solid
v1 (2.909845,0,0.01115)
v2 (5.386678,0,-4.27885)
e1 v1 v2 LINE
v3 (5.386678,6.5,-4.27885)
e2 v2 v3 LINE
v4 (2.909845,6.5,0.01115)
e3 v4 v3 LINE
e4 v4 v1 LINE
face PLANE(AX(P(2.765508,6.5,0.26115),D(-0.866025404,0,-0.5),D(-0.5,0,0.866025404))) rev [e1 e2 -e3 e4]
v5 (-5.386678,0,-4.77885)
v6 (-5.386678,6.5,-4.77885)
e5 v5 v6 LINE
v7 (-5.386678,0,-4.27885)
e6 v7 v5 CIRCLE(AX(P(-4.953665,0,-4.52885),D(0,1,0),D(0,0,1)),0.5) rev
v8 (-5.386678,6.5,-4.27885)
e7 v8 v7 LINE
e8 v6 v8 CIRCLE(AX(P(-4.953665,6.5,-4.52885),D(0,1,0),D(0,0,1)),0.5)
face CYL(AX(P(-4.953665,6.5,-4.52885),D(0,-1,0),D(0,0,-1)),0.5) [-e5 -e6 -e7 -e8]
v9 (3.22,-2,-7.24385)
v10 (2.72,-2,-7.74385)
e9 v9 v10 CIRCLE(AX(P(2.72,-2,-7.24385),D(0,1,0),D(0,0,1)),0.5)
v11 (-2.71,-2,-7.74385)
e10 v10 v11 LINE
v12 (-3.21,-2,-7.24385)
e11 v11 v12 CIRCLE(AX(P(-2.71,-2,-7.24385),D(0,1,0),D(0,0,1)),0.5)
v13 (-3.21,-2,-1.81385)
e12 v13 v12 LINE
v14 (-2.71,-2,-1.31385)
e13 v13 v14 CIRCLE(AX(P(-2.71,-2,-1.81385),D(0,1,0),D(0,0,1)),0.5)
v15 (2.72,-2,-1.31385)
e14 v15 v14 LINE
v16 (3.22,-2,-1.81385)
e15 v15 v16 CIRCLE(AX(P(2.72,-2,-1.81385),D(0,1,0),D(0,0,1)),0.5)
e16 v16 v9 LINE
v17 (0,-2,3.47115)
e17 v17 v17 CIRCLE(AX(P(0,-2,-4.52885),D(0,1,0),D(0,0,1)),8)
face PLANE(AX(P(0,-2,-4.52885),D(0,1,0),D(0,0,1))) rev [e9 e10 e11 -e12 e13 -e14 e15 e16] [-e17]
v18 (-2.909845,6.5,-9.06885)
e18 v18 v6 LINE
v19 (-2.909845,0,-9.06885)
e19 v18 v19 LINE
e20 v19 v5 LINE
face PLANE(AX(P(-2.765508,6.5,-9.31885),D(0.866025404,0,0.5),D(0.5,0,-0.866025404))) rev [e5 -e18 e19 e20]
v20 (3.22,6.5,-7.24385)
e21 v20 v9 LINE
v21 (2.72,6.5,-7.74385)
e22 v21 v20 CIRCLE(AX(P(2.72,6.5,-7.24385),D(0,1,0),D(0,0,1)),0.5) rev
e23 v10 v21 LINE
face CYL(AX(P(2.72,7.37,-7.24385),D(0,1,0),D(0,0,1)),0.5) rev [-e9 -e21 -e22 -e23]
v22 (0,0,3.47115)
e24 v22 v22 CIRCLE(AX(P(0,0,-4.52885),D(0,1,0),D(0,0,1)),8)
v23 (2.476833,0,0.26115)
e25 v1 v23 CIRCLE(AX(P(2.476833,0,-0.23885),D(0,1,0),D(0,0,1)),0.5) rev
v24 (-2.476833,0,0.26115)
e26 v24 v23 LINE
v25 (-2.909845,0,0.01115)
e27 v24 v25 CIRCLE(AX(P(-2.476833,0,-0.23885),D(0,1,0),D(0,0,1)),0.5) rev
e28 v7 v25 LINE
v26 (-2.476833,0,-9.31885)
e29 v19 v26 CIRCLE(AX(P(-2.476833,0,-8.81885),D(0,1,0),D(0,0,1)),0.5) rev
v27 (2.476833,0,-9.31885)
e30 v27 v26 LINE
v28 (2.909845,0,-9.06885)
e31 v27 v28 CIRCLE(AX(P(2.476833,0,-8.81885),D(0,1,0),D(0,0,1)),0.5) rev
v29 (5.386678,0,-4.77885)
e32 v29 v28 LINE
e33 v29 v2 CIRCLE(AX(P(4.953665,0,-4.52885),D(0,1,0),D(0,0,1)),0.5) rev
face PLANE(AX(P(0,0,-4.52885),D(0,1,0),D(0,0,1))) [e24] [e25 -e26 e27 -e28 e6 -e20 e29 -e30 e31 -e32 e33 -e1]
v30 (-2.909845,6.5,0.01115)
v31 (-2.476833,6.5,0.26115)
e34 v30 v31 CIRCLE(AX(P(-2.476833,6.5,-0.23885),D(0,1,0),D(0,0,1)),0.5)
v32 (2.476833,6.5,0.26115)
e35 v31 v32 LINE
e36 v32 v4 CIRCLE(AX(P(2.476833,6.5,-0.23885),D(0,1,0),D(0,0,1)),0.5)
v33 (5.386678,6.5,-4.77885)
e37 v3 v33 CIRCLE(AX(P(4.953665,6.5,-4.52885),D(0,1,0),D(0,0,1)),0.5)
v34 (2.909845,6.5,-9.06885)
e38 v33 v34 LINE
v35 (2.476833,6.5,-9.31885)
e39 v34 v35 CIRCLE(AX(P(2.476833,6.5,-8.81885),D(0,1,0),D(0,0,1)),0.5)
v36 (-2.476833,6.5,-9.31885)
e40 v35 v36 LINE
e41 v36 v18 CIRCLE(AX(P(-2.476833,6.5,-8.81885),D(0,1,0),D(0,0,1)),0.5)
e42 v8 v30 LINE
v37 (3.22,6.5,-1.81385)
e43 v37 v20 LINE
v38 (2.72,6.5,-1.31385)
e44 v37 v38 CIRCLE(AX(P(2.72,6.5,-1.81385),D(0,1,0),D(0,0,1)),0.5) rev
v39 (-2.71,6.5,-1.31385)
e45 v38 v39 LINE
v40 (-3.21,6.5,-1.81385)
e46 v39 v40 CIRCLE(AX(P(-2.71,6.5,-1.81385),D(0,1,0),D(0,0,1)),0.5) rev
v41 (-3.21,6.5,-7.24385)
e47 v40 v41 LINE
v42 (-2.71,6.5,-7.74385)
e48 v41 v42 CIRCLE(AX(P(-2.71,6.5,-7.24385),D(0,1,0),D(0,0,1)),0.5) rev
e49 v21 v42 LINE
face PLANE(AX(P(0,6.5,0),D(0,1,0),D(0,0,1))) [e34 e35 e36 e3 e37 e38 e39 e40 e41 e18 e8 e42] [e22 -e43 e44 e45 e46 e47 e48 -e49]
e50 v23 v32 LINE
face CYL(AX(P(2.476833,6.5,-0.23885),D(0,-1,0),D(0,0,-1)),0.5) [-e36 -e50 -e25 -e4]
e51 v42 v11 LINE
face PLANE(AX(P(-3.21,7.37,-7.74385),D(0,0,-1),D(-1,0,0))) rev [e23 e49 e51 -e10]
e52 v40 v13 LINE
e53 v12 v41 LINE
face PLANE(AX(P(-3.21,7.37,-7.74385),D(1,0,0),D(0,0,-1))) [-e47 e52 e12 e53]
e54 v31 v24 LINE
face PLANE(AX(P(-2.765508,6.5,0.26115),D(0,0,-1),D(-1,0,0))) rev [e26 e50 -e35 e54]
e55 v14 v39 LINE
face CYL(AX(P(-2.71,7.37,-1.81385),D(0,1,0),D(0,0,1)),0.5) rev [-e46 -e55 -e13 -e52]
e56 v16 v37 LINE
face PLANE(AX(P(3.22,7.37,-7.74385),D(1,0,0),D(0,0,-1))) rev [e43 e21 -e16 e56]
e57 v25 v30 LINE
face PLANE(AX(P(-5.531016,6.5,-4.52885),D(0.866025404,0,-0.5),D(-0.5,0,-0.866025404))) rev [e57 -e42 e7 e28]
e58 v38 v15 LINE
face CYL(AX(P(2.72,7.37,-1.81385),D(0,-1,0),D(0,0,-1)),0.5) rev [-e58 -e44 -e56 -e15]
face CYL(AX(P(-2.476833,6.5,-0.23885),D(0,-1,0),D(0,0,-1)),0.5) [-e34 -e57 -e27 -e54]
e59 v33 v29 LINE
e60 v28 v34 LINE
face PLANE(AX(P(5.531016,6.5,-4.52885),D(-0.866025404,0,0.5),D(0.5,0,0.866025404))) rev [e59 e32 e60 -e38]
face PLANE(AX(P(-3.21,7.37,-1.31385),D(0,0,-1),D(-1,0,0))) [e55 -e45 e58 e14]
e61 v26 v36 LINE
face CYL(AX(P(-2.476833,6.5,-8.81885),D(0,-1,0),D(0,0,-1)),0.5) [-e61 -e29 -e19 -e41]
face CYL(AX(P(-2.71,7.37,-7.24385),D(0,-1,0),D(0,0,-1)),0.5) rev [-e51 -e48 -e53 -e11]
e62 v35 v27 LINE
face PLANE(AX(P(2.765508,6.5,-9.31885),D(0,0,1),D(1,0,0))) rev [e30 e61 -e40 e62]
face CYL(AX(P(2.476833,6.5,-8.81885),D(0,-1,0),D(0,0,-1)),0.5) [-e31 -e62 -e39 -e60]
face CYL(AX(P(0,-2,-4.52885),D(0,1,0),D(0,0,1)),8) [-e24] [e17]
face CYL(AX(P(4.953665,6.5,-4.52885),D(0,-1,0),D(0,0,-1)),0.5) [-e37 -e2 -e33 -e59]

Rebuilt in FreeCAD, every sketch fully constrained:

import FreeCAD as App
import Part
import Sketcher
from FreeCAD import Vector
Q = App.Units.Quantity


def edges_at(feature, points):
    """Names of the edges that pass closest to the given points."""
    edges = feature.Shape.Edges
    near = lambda p: min(range(len(edges)), key=lambda i: edges[i].distToShape(Part.Vertex(*p))[0])
    return sorted({f"Edge{near(p) + 1}" for p in points})


def add_polygon(sketch, points):
    """Adds a closed chain of lines whose ends are joined by coincident constraints."""
    first, n = sketch.GeometryCount, len(points)
    for a, b in zip(points, points[1:] + points[:1]):
        sketch.addGeometry(Part.LineSegment(App.Vector(*a, 0), App.Vector(*b, 0)), False)
    for i in range(n):
        sketch.addConstraint(Sketcher.Constraint("Coincident", first + i, 2, first + (i + 1) % n, 1))

doc = App.newDocument("Part")
body = doc.addObject("PartDesign::Body", "Body")

# Sketch on XZ plane
sketch1 = body.newObject("Sketcher::SketchObject", "Sketch")
sketch1.AttachmentSupport = (doc.getObject("XZ_Plane"), [""])
sketch1.MapMode = "FlatFace"
add_polygon(sketch1, [(3, 0), (6, -5), (3, -9), (-3, -9), (-6, -5), (-3, 0)])  # lines 0-5
sketch1.addConstraint([
    Sketcher.Constraint("Horizontal", 2),
    Sketcher.Constraint("Horizontal", 5),
    Sketcher.Constraint("Symmetric", 0, 2, 3, 2, -2),
    Sketcher.Constraint("Parallel", 0, 3),
    Sketcher.Constraint("Parallel", 1, 4),
    Sketcher.Constraint("Vertical", 2, 2, 4, 2),
    Sketcher.Constraint("Vertical", 1, 2, 5, 2),
    Sketcher.Constraint("Angle", 0, Q("-60 deg")),
    Sketcher.Constraint("DistanceY", 1, 2, 0, 2, 4.79),
    Sketcher.Constraint("DistanceX", 2, 2, 2, 1, 5.531016),
    Sketcher.Constraint("DistanceY", 0, 2, -1, 1, 4.52885),
])
pad1 = body.newObject("PartDesign::Pad", "Pad")
pad1.Profile = sketch1
pad1.Length = 6.5
pad1.Reversed = True

# Sketch on XZ plane
sketch2 = body.newObject("Sketcher::SketchObject", "Sketch001")
sketch2.AttachmentSupport = (doc.getObject("XZ_Plane"), [""])
sketch2.MapMode = "FlatFace"
sketch2.addGeometry(Part.Circle(Vector(0, -5, 0), Vector(0, 0, 1), 8), False)
sketch2.addConstraint([
    Sketcher.Constraint("PointOnObject", 0, 3, -2),
    Sketcher.Constraint("Diameter", 0, 16.0),
    Sketcher.Constraint("DistanceY", 0, 3, -1, 1, 4.52885),
])
pad2 = body.newObject("PartDesign::Pad", "Pad001")
pad2.Profile = sketch2
pad2.Length = 2

# Sketch on XZ plane
sketch3 = body.newObject("Sketcher::SketchObject", "Sketch002")
sketch3.AttachmentSupport = (doc.getObject("XZ_Plane"), [""])
sketch3.MapMode = "FlatFace"
add_polygon(sketch3, [(-3, -8), (-3, -1), (3, -1), (3, -8)])  # lines 0-3
sketch3.addConstraint([
    Sketcher.Constraint("Vertical", 0),
    Sketcher.Constraint("Horizontal", 1),
    Sketcher.Constraint("Vertical", 2),
    Sketcher.Constraint("Horizontal", 3),
    Sketcher.Constraint("Equal", 3, 0),
    Sketcher.Constraint("DistanceX", 1, 1, 1, 2, 6.43),
    Sketcher.Constraint("DistanceX", 0, 2, -1, 1, 3.21),
    Sketcher.Constraint("DistanceY", 0, 2, -1, 1, 1.31385),
])
pocket1 = body.newObject("PartDesign::Pocket", "Pocket")
pocket1.Profile = sketch3
pocket1.Type = "ThroughAll"
pocket1.Midplane = True
doc.recompute()

fillet = body.newObject("PartDesign::Fillet", "Fillet")
fillet.Base = (pocket1, edges_at(pocket1, [
    (3.22, 2.25, -7.744),
    (-3.21, 2.25, -7.744),
    (-3.21, 2.25, -1.314),
    (3.22, 2.25, -1.314),
]))
fillet.Radius = 0.5
doc.recompute()

fillet2 = body.newObject("PartDesign::Fillet", "Fillet001")
fillet2.Base = (fillet, edges_at(fillet, [
    (-2.766, 3.25, 0.261),
    (-5.531, 3.25, -4.529),
    (-2.766, 3.25, -9.319),
    (2.766, 3.25, -9.319),
    (5.531, 3.25, -4.529),
    (2.766, 3.25, 0.261),
]))
fillet2.Radius = 0.5

doc.recompute()
